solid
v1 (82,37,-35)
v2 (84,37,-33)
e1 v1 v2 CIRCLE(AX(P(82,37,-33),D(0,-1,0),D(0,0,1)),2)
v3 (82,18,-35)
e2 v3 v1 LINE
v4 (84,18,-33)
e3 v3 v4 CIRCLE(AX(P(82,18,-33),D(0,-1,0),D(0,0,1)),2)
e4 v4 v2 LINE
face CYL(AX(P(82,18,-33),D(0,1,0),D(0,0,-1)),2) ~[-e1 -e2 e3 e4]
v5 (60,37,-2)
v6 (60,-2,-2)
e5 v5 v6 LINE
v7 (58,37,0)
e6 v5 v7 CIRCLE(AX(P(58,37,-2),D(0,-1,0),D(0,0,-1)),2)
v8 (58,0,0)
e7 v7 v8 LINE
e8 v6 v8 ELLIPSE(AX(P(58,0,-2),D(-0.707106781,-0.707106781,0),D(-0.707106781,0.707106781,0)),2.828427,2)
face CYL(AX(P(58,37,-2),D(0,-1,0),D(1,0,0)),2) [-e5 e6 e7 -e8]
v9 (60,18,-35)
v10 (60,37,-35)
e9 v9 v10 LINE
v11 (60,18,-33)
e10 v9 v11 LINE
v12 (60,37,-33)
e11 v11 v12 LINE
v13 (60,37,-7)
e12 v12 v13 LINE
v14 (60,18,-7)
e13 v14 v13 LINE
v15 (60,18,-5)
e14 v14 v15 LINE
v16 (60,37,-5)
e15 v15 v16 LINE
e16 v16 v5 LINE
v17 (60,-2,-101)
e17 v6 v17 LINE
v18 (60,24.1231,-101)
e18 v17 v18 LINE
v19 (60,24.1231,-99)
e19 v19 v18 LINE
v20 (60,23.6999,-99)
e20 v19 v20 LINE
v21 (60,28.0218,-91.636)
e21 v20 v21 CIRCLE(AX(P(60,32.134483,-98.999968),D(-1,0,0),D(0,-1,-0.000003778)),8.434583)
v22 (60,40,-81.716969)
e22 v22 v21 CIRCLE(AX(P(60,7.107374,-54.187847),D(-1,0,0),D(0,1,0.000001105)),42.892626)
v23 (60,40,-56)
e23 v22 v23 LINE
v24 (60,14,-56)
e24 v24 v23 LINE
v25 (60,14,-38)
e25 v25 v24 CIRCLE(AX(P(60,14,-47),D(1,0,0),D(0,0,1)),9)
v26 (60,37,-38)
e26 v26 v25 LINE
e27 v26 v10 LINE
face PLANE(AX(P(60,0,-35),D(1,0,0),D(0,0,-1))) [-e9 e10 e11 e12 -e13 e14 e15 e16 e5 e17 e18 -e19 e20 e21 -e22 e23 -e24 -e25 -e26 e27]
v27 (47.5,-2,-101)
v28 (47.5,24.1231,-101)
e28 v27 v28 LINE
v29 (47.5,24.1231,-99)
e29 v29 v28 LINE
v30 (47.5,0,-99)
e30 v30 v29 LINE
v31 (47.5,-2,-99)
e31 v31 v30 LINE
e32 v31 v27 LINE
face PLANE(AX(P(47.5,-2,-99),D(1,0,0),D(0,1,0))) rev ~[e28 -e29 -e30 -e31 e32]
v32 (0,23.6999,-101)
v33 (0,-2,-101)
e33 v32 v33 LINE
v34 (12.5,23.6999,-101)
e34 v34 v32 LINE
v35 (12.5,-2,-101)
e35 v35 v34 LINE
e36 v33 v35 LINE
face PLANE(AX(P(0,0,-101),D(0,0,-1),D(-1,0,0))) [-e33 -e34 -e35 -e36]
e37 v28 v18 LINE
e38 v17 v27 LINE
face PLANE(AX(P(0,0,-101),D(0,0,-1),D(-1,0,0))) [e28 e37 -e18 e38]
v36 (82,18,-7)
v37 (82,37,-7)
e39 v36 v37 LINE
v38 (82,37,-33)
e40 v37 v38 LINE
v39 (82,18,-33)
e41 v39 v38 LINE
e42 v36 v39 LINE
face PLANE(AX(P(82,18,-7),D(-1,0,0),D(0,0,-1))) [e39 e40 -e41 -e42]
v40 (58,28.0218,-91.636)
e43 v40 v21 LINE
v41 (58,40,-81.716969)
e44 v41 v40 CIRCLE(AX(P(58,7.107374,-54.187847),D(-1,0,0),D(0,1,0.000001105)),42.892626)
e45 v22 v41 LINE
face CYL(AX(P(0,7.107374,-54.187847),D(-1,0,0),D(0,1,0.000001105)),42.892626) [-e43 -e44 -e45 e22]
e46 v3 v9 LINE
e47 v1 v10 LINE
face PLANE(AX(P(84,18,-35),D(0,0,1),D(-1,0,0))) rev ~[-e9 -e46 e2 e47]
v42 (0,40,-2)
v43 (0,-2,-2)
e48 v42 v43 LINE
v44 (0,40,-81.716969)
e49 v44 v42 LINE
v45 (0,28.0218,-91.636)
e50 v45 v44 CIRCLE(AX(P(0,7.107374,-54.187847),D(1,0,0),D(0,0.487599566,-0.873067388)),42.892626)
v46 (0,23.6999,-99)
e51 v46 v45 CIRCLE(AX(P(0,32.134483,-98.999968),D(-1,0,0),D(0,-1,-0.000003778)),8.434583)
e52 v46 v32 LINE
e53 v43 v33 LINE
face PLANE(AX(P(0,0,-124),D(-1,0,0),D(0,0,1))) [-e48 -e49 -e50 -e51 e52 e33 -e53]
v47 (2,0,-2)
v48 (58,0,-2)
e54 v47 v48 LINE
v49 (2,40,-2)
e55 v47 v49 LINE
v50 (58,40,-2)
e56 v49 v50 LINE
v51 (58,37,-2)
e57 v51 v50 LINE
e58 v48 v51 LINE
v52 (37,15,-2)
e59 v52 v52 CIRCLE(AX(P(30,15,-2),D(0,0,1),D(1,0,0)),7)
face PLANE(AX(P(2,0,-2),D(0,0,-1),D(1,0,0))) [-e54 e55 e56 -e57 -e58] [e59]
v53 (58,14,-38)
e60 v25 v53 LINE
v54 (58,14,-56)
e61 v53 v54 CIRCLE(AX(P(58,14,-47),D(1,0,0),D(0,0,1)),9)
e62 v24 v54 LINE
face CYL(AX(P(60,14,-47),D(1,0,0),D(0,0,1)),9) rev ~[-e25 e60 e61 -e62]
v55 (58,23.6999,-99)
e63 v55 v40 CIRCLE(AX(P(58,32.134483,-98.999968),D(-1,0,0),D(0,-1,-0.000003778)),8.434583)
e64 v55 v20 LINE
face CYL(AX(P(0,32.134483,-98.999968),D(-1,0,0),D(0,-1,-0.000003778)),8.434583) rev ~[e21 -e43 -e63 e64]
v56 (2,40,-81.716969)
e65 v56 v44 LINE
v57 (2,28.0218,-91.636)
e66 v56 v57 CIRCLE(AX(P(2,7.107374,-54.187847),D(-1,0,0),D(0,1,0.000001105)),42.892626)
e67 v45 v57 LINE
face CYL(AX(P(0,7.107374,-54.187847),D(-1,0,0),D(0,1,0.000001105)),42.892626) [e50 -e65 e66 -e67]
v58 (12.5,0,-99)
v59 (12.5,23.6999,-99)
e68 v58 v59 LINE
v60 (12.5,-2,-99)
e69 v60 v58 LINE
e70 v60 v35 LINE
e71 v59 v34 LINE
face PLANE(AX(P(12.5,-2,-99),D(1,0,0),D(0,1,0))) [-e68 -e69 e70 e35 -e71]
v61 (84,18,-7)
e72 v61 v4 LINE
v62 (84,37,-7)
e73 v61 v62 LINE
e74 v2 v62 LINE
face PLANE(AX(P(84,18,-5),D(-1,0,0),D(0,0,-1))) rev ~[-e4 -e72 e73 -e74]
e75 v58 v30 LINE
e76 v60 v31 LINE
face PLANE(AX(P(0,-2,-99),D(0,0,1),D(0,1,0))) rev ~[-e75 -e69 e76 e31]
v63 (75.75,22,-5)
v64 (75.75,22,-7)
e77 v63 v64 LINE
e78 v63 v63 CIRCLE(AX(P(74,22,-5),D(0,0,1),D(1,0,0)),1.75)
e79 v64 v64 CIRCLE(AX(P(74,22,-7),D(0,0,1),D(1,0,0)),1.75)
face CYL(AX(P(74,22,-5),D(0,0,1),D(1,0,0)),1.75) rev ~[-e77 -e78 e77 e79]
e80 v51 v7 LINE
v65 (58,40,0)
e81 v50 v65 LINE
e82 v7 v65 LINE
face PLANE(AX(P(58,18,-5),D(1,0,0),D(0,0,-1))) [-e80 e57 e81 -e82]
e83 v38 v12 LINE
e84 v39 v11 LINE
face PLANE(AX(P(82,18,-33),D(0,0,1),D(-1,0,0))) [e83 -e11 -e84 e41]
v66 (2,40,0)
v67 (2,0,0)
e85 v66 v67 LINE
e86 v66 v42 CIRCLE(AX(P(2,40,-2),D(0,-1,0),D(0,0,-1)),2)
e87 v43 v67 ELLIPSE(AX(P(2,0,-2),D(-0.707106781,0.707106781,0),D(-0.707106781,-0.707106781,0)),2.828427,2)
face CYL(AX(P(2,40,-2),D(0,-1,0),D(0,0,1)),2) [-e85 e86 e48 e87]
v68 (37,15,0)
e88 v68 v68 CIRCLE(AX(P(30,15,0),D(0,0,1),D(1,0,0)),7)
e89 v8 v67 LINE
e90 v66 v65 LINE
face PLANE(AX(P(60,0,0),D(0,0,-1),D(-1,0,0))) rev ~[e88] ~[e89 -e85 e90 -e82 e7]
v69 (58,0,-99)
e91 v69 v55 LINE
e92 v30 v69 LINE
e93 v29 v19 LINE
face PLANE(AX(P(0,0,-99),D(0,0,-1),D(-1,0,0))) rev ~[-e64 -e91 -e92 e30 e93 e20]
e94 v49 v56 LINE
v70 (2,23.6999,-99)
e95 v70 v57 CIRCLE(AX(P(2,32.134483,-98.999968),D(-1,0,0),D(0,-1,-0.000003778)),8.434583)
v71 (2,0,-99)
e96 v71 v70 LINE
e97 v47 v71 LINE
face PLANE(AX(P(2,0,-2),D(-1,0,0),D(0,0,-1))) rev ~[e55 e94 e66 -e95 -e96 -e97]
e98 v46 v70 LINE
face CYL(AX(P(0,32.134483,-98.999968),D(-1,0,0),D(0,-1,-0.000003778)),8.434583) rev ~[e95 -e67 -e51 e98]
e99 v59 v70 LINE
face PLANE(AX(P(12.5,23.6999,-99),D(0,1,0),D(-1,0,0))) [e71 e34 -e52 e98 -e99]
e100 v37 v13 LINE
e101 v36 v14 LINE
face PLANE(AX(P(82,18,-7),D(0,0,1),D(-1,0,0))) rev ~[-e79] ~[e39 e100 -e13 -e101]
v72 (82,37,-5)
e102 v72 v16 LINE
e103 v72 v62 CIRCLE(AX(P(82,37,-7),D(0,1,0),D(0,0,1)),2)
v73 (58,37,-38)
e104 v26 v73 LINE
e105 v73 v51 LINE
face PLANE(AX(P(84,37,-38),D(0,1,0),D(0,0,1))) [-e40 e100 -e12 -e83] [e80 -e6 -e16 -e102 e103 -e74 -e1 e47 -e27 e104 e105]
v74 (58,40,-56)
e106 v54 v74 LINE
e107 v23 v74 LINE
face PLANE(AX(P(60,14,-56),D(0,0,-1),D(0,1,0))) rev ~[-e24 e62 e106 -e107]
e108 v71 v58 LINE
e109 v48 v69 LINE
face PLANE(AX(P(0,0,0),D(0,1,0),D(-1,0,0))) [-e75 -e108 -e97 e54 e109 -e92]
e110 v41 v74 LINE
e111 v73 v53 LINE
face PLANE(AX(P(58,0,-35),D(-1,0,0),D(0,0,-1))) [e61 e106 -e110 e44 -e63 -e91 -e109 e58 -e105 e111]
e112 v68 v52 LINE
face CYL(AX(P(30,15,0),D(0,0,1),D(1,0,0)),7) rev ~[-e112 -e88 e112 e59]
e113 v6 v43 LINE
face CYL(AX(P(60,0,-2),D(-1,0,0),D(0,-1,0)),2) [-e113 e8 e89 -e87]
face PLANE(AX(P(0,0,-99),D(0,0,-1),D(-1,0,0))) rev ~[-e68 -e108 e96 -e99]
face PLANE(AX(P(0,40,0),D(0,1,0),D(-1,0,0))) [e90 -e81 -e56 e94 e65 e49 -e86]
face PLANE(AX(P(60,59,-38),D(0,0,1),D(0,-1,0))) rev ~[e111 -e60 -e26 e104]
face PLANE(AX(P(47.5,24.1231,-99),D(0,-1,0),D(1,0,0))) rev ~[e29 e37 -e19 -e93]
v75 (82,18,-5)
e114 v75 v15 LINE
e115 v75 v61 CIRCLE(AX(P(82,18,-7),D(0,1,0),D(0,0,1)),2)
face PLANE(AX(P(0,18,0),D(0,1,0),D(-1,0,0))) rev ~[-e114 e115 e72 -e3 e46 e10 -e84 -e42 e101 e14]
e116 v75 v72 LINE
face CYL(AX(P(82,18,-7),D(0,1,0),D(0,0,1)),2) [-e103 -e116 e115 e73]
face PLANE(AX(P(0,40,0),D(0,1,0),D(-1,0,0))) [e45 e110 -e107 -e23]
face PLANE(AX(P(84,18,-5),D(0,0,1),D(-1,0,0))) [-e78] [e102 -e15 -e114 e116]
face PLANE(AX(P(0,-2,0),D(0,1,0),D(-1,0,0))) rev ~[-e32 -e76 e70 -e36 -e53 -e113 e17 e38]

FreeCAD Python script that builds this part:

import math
import FreeCAD as App
import Part
import Sketcher


def edges_at(feature, points):
    """Names of the edges that pass closest to the given points."""
    edges = feature.Shape.Edges
    near = lambda p: min(range(len(edges)), key=lambda i: edges[i].distToShape(Part.Vertex(*p))[0])
    return sorted({f"Edge{near(p) + 1}" for p in points})

doc = App.newDocument("Part")
body = doc.addObject("PartDesign::Body", "Body")

# Sketch on XZ plane
sketch1 = body.newObject("Sketcher::SketchObject", "Sketch")
sketch1.AttachmentSupport = (doc.getObject("XZ_Plane"), [""])
sketch1.MapMode = "FlatFace"
sketch1.addGeometry([
    Part.LineSegment(App.Vector(60, -124, 0), App.Vector(0, -124, 0)),
    Part.LineSegment(App.Vector(0, -124, 0), App.Vector(0, 0, 0)),
    Part.LineSegment(App.Vector(0, 0, 0), App.Vector(60, 0, 0)),
    Part.LineSegment(App.Vector(60, 0, 0), App.Vector(60, -124, 0)),
], False)
sketch1.addConstraint([
    Sketcher.Constraint("Coincident", 0, 2, 1, 1),
    Sketcher.Constraint("Coincident", 1, 2, 2, 1),
    Sketcher.Constraint("Coincident", 2, 2, 3, 1),
    Sketcher.Constraint("Coincident", 3, 2, 0, 1),
    Sketcher.Constraint("Horizontal", 0),
    Sketcher.Constraint("Vertical", 1),
    Sketcher.Constraint("Horizontal", 2),
    Sketcher.Constraint("Vertical", 3),
    Sketcher.Constraint("Coincident", 1, 2, -1, 1),
    Sketcher.Constraint("DistanceX", 0, 2, 0, 1, 60.0),
    Sketcher.Constraint("DistanceY", 1, 1, 1, 2, 124.0),
])
pad1 = body.newObject("PartDesign::Pad", "Pad")
pad1.Profile = sketch1
pad1.Length = 2

# Sketch on XZ plane
sketch2 = body.newObject("Sketcher::SketchObject", "Sketch001")
sketch2.AttachmentSupport = (doc.getObject("XZ_Plane"), [""])
sketch2.MapMode = "FlatFace"
sketch2.addGeometry([
    Part.LineSegment(App.Vector(60, -124, 0), App.Vector(40, -124, 0)),  # 0
    Part.LineSegment(App.Vector(40, -124, 0), App.Vector(40, -122, 0)),  # 1
    Part.LineSegment(App.Vector(40, -122, 0), App.Vector(58, -122, 0)),  # 2
    Part.LineSegment(App.Vector(58, -122, 0), App.Vector(58, -2, 0)),  # 3
    Part.LineSegment(App.Vector(58, -2, 0), App.Vector(2, -2, 0)),  # 4
    Part.LineSegment(App.Vector(2, -2, 0), App.Vector(2, -122, 0)),  # 5
    Part.LineSegment(App.Vector(2, -122, 0), App.Vector(20, -122, 0)),  # 6
    Part.LineSegment(App.Vector(20, -122, 0), App.Vector(20, -124, 0)),  # 7
    Part.LineSegment(App.Vector(20, -124, 0), App.Vector(0, -124, 0)),  # 8
    Part.LineSegment(App.Vector(0, -124, 0), App.Vector(0, 0, 0)),  # 9
    Part.LineSegment(App.Vector(0, 0, 0), App.Vector(60, 0, 0)),  # 10
    Part.LineSegment(App.Vector(60, 0, 0), App.Vector(60, -124, 0)),  # 11
], False)
sketch2.addConstraint([
    Sketcher.Constraint("Coincident", 0, 2, 1, 1),
    Sketcher.Constraint("Coincident", 1, 2, 2, 1),
    Sketcher.Constraint("Coincident", 2, 2, 3, 1),
    Sketcher.Constraint("Coincident", 3, 2, 4, 1),
    Sketcher.Constraint("Coincident", 4, 2, 5, 1),
    Sketcher.Constraint("Coincident", 5, 2, 6, 1),
    Sketcher.Constraint("Coincident", 6, 2, 7, 1),
    Sketcher.Constraint("Coincident", 7, 2, 8, 1),
    Sketcher.Constraint("Coincident", 8, 2, 9, 1),
    Sketcher.Constraint("Coincident", 9, 2, 10, 1),
    Sketcher.Constraint("Coincident", 10, 2, 11, 1),
    Sketcher.Constraint("Coincident", 11, 2, 0, 1),
    Sketcher.Constraint("Horizontal", 0),
    Sketcher.Constraint("Vertical", 1),
    Sketcher.Constraint("Horizontal", 2),
    Sketcher.Constraint("Vertical", 3),
    Sketcher.Constraint("Horizontal", 4),
    Sketcher.Constraint("Vertical", 5),
    Sketcher.Constraint("Horizontal", 6),
    Sketcher.Constraint("Vertical", 7),
    Sketcher.Constraint("Horizontal", 8),
    Sketcher.Constraint("Vertical", 9),
    Sketcher.Constraint("Horizontal", 10),
    Sketcher.Constraint("Vertical", 11),
    Sketcher.Constraint("Coincident", 9, 2, -1, 1),
    Sketcher.Constraint("Horizontal", 2, 2, 5, 2),
    Sketcher.Constraint("Horizontal", 0, 2, 7, 2),
    Sketcher.Constraint("Equal", 2, 6),
    Sketcher.Constraint("Equal", 0, 8),
    Sketcher.Constraint("DistanceX", 0, 2, 0, 1, 20.0),
    Sketcher.Constraint("DistanceX", 10, 1, 10, 2, 60.0),
    Sketcher.Constraint("DistanceY", 1, 1, 1, 2, 2.0),
    Sketcher.Constraint("DistanceY", 3, 2, -1, 1, 2.0),
    Sketcher.Constraint("DistanceX", -1, 1, 4, 2, 2.0),
    Sketcher.Constraint("DistanceY", 3, 1, 3, 2, 120.0),
])
pad2 = body.newObject("PartDesign::Pad", "Pad001")
pad2.Profile = sketch2
pad2.Length = 40
pad2.Reversed = True

# Sketch on XY plane
sketch3 = body.newObject("Sketcher::SketchObject", "Sketch002")
sketch3.AttachmentSupport = (doc.getObject("XY_Plane"), [""])
sketch3.MapMode = "FlatFace"
sketch3.addGeometry(Part.Circle(App.Vector(30, 15, 0), App.Vector(0, 0, 1), 7), False)
sketch3.addConstraint([
    Sketcher.Constraint("Diameter", 0, 14.0),
    Sketcher.Constraint("DistanceX", -1, 1, 0, 3, 30.0),
    Sketcher.Constraint("DistanceY", -1, 1, 0, 3, 15.0),
])
pocket1 = body.newObject("PartDesign::Pocket", "Pocket")
pocket1.Profile = sketch3
pocket1.Type = "UpToFirst"

# Sketch on YZ plane
sketch4 = body.newObject("Sketcher::SketchObject", "Sketch003")
sketch4.AttachmentSupport = (doc.getObject("YZ_Plane"), [""])
sketch4.MapMode = "FlatFace"
sketch4.AttachmentOffset = App.Placement(App.Vector(0, 0, 60), App.Rotation())
sketch4.addGeometry([
    Part.LineSegment(App.Vector(59, -38, 0), App.Vector(14, -38, 0)),
    Part.ArcOfCircle(Part.Circle(App.Vector(14, -47, 0), App.Vector(0, 0, 1), 9), math.radians(90), math.radians(270)),
    Part.LineSegment(App.Vector(14, -56, 0), App.Vector(59, -56, 0)),
    Part.LineSegment(App.Vector(59, -56, 0), App.Vector(59, -38, 0)),
], False)
sketch4.addConstraint([
    Sketcher.Constraint("Tangent", 0, 2, 1, 1),
    Sketcher.Constraint("Tangent", 1, 2, 2, 1),
    Sketcher.Constraint("Coincident", 2, 2, 3, 1),
    Sketcher.Constraint("Coincident", 3, 2, 0, 1),
    Sketcher.Constraint("Horizontal", 0),
    Sketcher.Constraint("Horizontal", 2),
    Sketcher.Constraint("Vertical", 3),
    Sketcher.Constraint("Radius", 1, 9.0),
    Sketcher.Constraint("DistanceX", 0, 2, 0, 1, 45.0),
    Sketcher.Constraint("DistanceY", 1, 3, -1, 1, 47.0),
    Sketcher.Constraint("DistanceX", -1, 1, 1, 3, 14.0),
])
pocket2 = body.newObject("PartDesign::Pocket", "Pocket001")
pocket2.Profile = sketch4
pocket2.Length = 2

# Sketch on XZ plane
sketch5 = body.newObject("Sketcher::SketchObject", "Sketch004")
sketch5.AttachmentSupport = (doc.getObject("XZ_Plane"), [""])
sketch5.MapMode = "FlatFace"
sketch5.AttachmentOffset = App.Placement(App.Vector(0, 0, -18), App.Rotation())
sketch5.addGeometry([
    Part.LineSegment(App.Vector(84, -35, 0), App.Vector(60, -35, 0)),  # 0
    Part.LineSegment(App.Vector(60, -35, 0), App.Vector(60, -33, 0)),  # 1
    Part.LineSegment(App.Vector(60, -33, 0), App.Vector(82, -33, 0)),  # 2
    Part.LineSegment(App.Vector(82, -33, 0), App.Vector(82, -7, 0)),  # 3
    Part.LineSegment(App.Vector(82, -7, 0), App.Vector(60, -7, 0)),  # 4
    Part.LineSegment(App.Vector(60, -7, 0), App.Vector(60, -5, 0)),  # 5
    Part.LineSegment(App.Vector(60, -5, 0), App.Vector(84, -5, 0)),  # 6
    Part.LineSegment(App.Vector(84, -5, 0), App.Vector(84, -35, 0)),  # 7
], False)
sketch5.addConstraint([
    Sketcher.Constraint("Coincident", 0, 2, 1, 1),
    Sketcher.Constraint("Coincident", 1, 2, 2, 1),
    Sketcher.Constraint("Coincident", 2, 2, 3, 1),
    Sketcher.Constraint("Coincident", 3, 2, 4, 1),
    Sketcher.Constraint("Coincident", 4, 2, 5, 1),
    Sketcher.Constraint("Coincident", 5, 2, 6, 1),
    Sketcher.Constraint("Coincident", 6, 2, 7, 1),
    Sketcher.Constraint("Coincident", 7, 2, 0, 1),
    Sketcher.Constraint("Horizontal", 0),
    Sketcher.Constraint("Vertical", 1),
    Sketcher.Constraint("Horizontal", 2),
    Sketcher.Constraint("Vertical", 3),
    Sketcher.Constraint("Horizontal", 4),
    Sketcher.Constraint("Vertical", 5),
    Sketcher.Constraint("Horizontal", 6),
    Sketcher.Constraint("Vertical", 7),
    Sketcher.Constraint("Vertical", 1, 2, 4, 2),
    Sketcher.Constraint("Equal", 1, 5),
    Sketcher.Constraint("DistanceY", 1, 1, 1, 2, 2.0),
    Sketcher.Constraint("DistanceY", 3, 1, 3, 2, 26.0),
    Sketcher.Constraint("DistanceX", -1, 1, 0, 2, 60.0),
    Sketcher.Constraint("DistanceX", 3, 2, 6, 2, 2.0),
    Sketcher.Constraint("DistanceX", 0, 2, 0, 1, 24.0),
    Sketcher.Constraint("DistanceY", 0, 2, -1, 1, 35.0),
])
pad3 = body.newObject("PartDesign::Pad", "Pad002")
pad3.Profile = sketch5
pad3.Length = 22
pad3.Reversed = True

# Sketch on YZ plane
sketch6 = body.newObject("Sketcher::SketchObject", "Sketch005")
sketch6.AttachmentSupport = (doc.getObject("YZ_Plane"), [""])
sketch6.MapMode = "FlatFace"
sketch6.AttachmentOffset = App.Placement(App.Vector(0, 0, 84), App.Rotation())
sketch6.addGeometry([
    Part.LineSegment(App.Vector(37, -38, 0), App.Vector(40, -38, 0)),
    Part.LineSegment(App.Vector(40, -38, 0), App.Vector(40, 0, 0)),
    Part.LineSegment(App.Vector(40, 0, 0), App.Vector(37, 0, 0)),
    Part.LineSegment(App.Vector(37, 0, 0), App.Vector(37, -38, 0)),
], False)
sketch6.addConstraint([
    Sketcher.Constraint("Coincident", 0, 2, 1, 1),
    Sketcher.Constraint("Coincident", 1, 2, 2, 1),
    Sketcher.Constraint("Coincident", 2, 2, 3, 1),
    Sketcher.Constraint("Coincident", 3, 2, 0, 1),
    Sketcher.Constraint("Horizontal", 0),
    Sketcher.Constraint("Vertical", 1),
    Sketcher.Constraint("Horizontal", 2),
    Sketcher.Constraint("Vertical", 3),
    Sketcher.Constraint("PointOnObject", 1, 2, -1),
    Sketcher.Constraint("DistanceX", 0, 1, 0, 2, 3.0),
    Sketcher.Constraint("DistanceY", 1, 1, 1, 2, 38.0),
    Sketcher.Constraint("DistanceX", -1, 1, 0, 2, 40.0),
])
pocket3 = body.newObject("PartDesign::Pocket", "Pocket002")
pocket3.Profile = sketch6
pocket3.Length = 26

# Sketch on XY plane
sketch7 = body.newObject("Sketcher::SketchObject", "Sketch006")
sketch7.AttachmentSupport = (doc.getObject("XY_Plane"), [""])
sketch7.MapMode = "FlatFace"
sketch7.AttachmentOffset = App.Placement(App.Vector(0, 0, -5), App.Rotation())
sketch7.addGeometry(Part.Circle(App.Vector(74, 22, 0), App.Vector(0, 0, 1), 1.75), False)
sketch7.addConstraint([
    Sketcher.Constraint("Diameter", 0, 3.5),
    Sketcher.Constraint("DistanceX", -1, 1, 0, 3, 74.0),
    Sketcher.Constraint("DistanceY", -1, 1, 0, 3, 22.0),
])
pocket4 = body.newObject("PartDesign::Pocket", "Pocket003")
pocket4.Profile = sketch7
pocket4.Length = 10
doc.recompute()

fillet = body.newObject("PartDesign::Fillet", "Fillet")
fillet.Base = (pocket4, edges_at(pocket4, [
    (30, -2, 0),
    (0, 19, 0),
    (60, 17.5, 0),
    (84, 27.5, -35),
    (84, 27.5, -5),
]))
fillet.Radius = 2

# Sketch on YZ plane
sketch8 = body.newObject("Sketcher::SketchObject", "Sketch007")
sketch8.AttachmentSupport = (doc.getObject("YZ_Plane"), [""])
sketch8.MapMode = "FlatFace"
sketch8.addGeometry([
    Part.LineSegment(App.Vector(-2, -99, 0), App.Vector(23.6999, -99, 0)),  # 0
    Part.ArcOfCircle(Part.Circle(App.Vector(32.1346, -99, 0), App.Vector(0, 0, 1), 8.4347), math.radians(119.183394), math.radians(180)),  # 1
    Part.ArcOfCircle(Part.Circle(App.Vector(7.1072, -54.1878, 0), App.Vector(0, 0, 1), 42.8928), math.radians(-60.816898), math.radians(0)),  # 2
    Part.LineSegment(App.Vector(50, -54.1878, 0), App.Vector(50, -124, 0)),  # 3
    Part.LineSegment(App.Vector(50, -124, 0), App.Vector(-2, -124, 0)),  # 4
    Part.LineSegment(App.Vector(-2, -124, 0), App.Vector(-2, -99, 0)),  # 5
], False)
sketch8.addConstraint([
    Sketcher.Constraint("Coincident", 0, 2, 1, 2),
    Sketcher.Constraint("Tangent", 1, 1, 2, 1),
    Sketcher.Constraint("Tangent", 2, 2, 3, 1),
    Sketcher.Constraint("Coincident", 3, 2, 4, 1),
    Sketcher.Constraint("Coincident", 4, 2, 5, 1),
    Sketcher.Constraint("Coincident", 5, 2, 0, 1),
    Sketcher.Constraint("Horizontal", 0),
    Sketcher.Constraint("Vertical", 3),
    Sketcher.Constraint("Horizontal", 4),
    Sketcher.Constraint("Vertical", 5),
    Sketcher.Constraint("Horizontal", 1, 3, 0, 2),
    Sketcher.Constraint("DistanceY", 5, 1, 5, 2, 25.0),
    Sketcher.Constraint("DistanceX", 4, 2, 4, 1, 52.0),
    Sketcher.Constraint("DistanceX", 0, 1, 0, 2, 25.7),
    Sketcher.Constraint("DistanceY", 1, 3, -1, 1, 99.0),
    Sketcher.Constraint("DistanceX", -1, 1, 2, 2, 50.0),
    Sketcher.Constraint("Radius", 1, 8.4347),
    Sketcher.Constraint("Radius", 2, 42.8928),
])
pocket5 = body.newObject("PartDesign::Pocket", "Pocket004")
pocket5.Profile = sketch8
pocket5.Type = "ThroughAll"
pocket5.Reversed = True

# Sketch on XY plane
sketch9 = body.newObject("Sketcher::SketchObject", "Sketch008")
sketch9.AttachmentSupport = (doc.getObject("XY_Plane"), [""])
sketch9.MapMode = "FlatFace"
sketch9.AttachmentOffset = App.Placement(App.Vector(0, 0, -99), App.Rotation())
sketch9.addGeometry([
    Part.LineSegment(App.Vector(0, -2, 0), App.Vector(0, 23.6999, 0)),  # 0
    Part.LineSegment(App.Vector(0, 23.6999, 0), App.Vector(12.5, 23.6999, 0)),  # 1
    Part.LineSegment(App.Vector(12.5, 23.6999, 0), App.Vector(12.5, -2, 0)),  # 2
    Part.LineSegment(App.Vector(12.5, -2, 0), App.Vector(0, -2, 0)),  # 3
    Part.LineSegment(App.Vector(60, 24.1231, 0), App.Vector(60, -2, 0)),  # 4
    Part.LineSegment(App.Vector(60, -2, 0), App.Vector(47.5, -2, 0)),  # 5
    Part.LineSegment(App.Vector(47.5, -2, 0), App.Vector(47.5, 24.1231, 0)),  # 6
    Part.LineSegment(App.Vector(47.5, 24.1231, 0), App.Vector(60, 24.1231, 0)),  # 7
], False)
sketch9.addConstraint([
    Sketcher.Constraint("Coincident", 0, 2, 1, 1),
    Sketcher.Constraint("Coincident", 1, 2, 2, 1),
    Sketcher.Constraint("Coincident", 2, 2, 3, 1),
    Sketcher.Constraint("Coincident", 3, 2, 0, 1),
    Sketcher.Constraint("Coincident", 4, 2, 5, 1),
    Sketcher.Constraint("Coincident", 5, 2, 6, 1),
    Sketcher.Constraint("Coincident", 6, 2, 7, 1),
    Sketcher.Constraint("Coincident", 7, 2, 4, 1),
    Sketcher.Constraint("Vertical", 0),
    Sketcher.Constraint("Horizontal", 1),
    Sketcher.Constraint("Vertical", 2),
    Sketcher.Constraint("Horizontal", 3),
    Sketcher.Constraint("Vertical", 4),
    Sketcher.Constraint("Horizontal", 5),
    Sketcher.Constraint("Vertical", 6),
    Sketcher.Constraint("Horizontal", 7),
    Sketcher.Constraint("PointOnObject", 0, 2, -2),
    Sketcher.Constraint("Horizontal", 3, 2, 4, 2),
    Sketcher.Constraint("Equal", 3, 5),
    Sketcher.Constraint("DistanceX", 2, 2, 5, 2, 35.0),
    Sketcher.Constraint("DistanceX", 1, 1, 1, 2, 12.5),
    Sketcher.Constraint("DistanceY", 0, 1, 0, 2, 25.7),
    Sketcher.Constraint("DistanceY", 2, 2, -1, 1, 2.0),
    Sketcher.Constraint("DistanceY", 4, 2, 4, 1, 26.123),
])
pad4 = body.newObject("PartDesign::Pad", "Pad003")
pad4.Profile = sketch9
pad4.Length = 2
pad4.Reversed = True

doc.recompute()
